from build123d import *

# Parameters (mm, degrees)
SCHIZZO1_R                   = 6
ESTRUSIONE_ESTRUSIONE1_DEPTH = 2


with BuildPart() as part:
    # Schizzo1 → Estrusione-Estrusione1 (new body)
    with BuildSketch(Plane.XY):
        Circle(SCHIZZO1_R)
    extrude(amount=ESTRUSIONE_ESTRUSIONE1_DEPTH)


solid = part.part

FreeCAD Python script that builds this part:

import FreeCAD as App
import Part
import Sketcher

V = App.Vector
Q = App.Units.Quantity

doc = App.newDocument("Part")
body = doc.addObject("PartDesign::Body", "Body")

# Sketch on XY plane
sketch1 = body.newObject("Sketcher::SketchObject", "Sketch")
sketch1.AttachmentSupport = (doc.getObject("XY_Plane"), [""])
sketch1.MapMode = "FlatFace"
sketch1.addGeometry(Part.Circle(V(0, 0, 0), V(0, 0, 1), 6), False)
sketch1.addConstraint([
    Sketcher.Constraint("Coincident", 0, 3, -1, 1),
    Sketcher.Constraint("Diameter", 0, Q("12 mm")),
])
pad1 = body.newObject("PartDesign::Pad", "Pad")
pad1.Profile = sketch1
pad1.Length = 2

doc.recompute()
